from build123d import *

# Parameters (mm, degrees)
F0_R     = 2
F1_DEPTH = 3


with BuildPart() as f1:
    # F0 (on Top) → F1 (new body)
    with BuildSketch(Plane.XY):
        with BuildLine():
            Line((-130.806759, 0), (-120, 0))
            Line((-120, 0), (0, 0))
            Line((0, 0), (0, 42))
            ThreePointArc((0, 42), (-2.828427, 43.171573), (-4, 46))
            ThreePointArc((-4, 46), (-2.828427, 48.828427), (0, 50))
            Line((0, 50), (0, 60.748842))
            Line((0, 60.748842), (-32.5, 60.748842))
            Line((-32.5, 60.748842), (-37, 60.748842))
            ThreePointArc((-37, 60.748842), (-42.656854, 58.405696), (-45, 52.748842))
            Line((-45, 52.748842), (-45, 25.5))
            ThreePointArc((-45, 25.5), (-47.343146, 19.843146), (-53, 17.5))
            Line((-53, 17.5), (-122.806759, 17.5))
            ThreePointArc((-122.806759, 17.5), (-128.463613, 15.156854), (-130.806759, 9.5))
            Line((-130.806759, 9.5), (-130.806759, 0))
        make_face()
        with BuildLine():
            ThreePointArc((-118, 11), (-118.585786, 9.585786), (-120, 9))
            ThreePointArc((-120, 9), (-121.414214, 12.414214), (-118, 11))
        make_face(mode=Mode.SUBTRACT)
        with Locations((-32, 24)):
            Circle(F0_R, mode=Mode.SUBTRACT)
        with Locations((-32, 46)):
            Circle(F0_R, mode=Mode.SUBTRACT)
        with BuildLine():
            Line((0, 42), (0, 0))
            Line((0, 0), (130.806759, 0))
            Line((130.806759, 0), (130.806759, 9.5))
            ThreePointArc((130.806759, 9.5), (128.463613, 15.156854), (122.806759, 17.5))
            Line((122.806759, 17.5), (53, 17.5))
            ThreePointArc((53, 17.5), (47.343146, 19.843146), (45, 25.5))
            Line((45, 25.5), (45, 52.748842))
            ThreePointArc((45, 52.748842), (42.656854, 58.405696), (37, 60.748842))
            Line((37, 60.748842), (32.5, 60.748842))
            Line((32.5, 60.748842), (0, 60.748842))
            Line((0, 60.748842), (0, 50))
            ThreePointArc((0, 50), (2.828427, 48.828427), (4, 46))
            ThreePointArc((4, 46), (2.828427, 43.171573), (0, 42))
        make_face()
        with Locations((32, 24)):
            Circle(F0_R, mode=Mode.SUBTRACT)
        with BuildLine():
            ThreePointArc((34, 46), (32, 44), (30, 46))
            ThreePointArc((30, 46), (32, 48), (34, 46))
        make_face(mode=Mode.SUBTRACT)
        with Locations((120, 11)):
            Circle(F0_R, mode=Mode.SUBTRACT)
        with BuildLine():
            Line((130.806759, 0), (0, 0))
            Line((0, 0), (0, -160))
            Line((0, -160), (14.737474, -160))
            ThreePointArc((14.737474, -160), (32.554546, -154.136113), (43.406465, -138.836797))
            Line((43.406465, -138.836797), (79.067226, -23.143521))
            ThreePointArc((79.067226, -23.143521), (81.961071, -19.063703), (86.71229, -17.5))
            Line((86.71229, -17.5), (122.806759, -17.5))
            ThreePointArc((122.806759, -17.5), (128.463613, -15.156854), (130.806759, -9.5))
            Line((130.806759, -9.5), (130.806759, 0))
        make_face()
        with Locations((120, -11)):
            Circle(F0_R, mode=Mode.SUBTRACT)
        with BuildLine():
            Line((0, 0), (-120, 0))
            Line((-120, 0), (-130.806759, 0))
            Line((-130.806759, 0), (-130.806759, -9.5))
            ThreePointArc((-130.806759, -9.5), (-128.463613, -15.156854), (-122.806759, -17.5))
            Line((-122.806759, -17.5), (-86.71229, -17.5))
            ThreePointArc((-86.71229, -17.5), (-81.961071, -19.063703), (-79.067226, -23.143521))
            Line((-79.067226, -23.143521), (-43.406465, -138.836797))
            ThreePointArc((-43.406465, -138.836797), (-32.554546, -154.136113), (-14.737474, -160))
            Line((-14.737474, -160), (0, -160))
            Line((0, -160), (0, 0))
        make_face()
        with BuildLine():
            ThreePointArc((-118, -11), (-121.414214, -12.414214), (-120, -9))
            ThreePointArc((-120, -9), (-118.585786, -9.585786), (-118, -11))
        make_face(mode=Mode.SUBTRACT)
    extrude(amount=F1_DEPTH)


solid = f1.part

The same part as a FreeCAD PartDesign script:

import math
import FreeCAD as App
import Part
import Sketcher

doc = App.newDocument("Part")
params = doc.addObject("Spreadsheet::Sheet", "Params")
for row, (alias, value) in enumerate([
    ("sketch1_diameter", "4 mm"),
    ("sketch1_radius", "8.000001 mm"),
    ("sketch1_radius2", "30.000001 mm"),
    ("sketch1_radius3", "4 mm"),
    ("sketch1_width", "74 mm"),
    ("pad1_length", "3 mm"),
], start=1):
    params.set(f"A{row}", alias)
    params.set(f"B{row}", "=" + value)
    params.setAlias(f"B{row}", alias)

body = doc.addObject("PartDesign::Body", "Body")

# Sketch on XY plane
sketch1 = body.newObject("Sketcher::SketchObject", "Sketch")
sketch1.AttachmentSupport = (doc.getObject("XY_Plane"), [""])
sketch1.MapMode = "FlatFace"
sketch1.addGeometry([
    Part.LineSegment(App.Vector(-130.8, 9.5, 0), App.Vector(-130.8, -9.5, 0)),  # 0
    Part.ArcOfCircle(Part.Circle(App.Vector(-122.8, -9.5, 0), App.Vector(0, 0, 1), 8), math.radians(-180), math.radians(-90)),  # 1
    Part.LineSegment(App.Vector(-122.8, -17.5, 0), App.Vector(-86.7, -17.5, 0)),  # 2
    Part.ArcOfCircle(Part.Circle(App.Vector(-86.7, -25.5, 0), App.Vector(0, 0, 1), 8), math.radians(17), math.radians(90)),  # 3
    Part.LineSegment(App.Vector(-79.1, -23.1, 0), App.Vector(-43.4, -138.8, 0)),  # 4
    Part.ArcOfCircle(Part.Circle(App.Vector(-14.7, -130, 0), App.Vector(0, 0, 1), 30), math.radians(-163), math.radians(-90)),  # 5
    Part.LineSegment(App.Vector(-14.7, -160, 0), App.Vector(14.7, -160, 0)),  # 6
    Part.ArcOfCircle(Part.Circle(App.Vector(14.7, -130, 0), App.Vector(0, 0, 1), 30), math.radians(-90), math.radians(-17)),  # 7
    Part.LineSegment(App.Vector(43.4, -138.8, 0), App.Vector(79.1, -23.1, 0)),  # 8
    Part.ArcOfCircle(Part.Circle(App.Vector(86.7, -25.5, 0), App.Vector(0, 0, 1), 8), math.radians(90), math.radians(163)),  # 9
    Part.LineSegment(App.Vector(86.7, -17.5, 0), App.Vector(122.8, -17.5, 0)),  # 10
    Part.ArcOfCircle(Part.Circle(App.Vector(122.8, -9.5, 0), App.Vector(0, 0, 1), 8), math.radians(-90), math.radians(0)),  # 11
    Part.LineSegment(App.Vector(130.8, -9.5, 0), App.Vector(130.8, 9.5, 0)),  # 12
    Part.ArcOfCircle(Part.Circle(App.Vector(122.8, 9.5, 0), App.Vector(0, 0, 1), 8), math.radians(0), math.radians(90)),  # 13
    Part.LineSegment(App.Vector(122.8, 17.5, 0), App.Vector(53, 17.5, 0)),  # 14
    Part.ArcOfCircle(Part.Circle(App.Vector(53, 25.5, 0), App.Vector(0, 0, 1), 8), math.radians(-180), math.radians(-90)),  # 15
    Part.LineSegment(App.Vector(45, 25.5, 0), App.Vector(45, 52.7, 0)),  # 16
    Part.ArcOfCircle(Part.Circle(App.Vector(37, 52.7, 0), App.Vector(0, 0, 1), 8), math.radians(0), math.radians(90)),  # 17
    Part.LineSegment(App.Vector(37, 60.7, 0), App.Vector(-37, 60.7, 0)),  # 18
    Part.ArcOfCircle(Part.Circle(App.Vector(-37, 52.7, 0), App.Vector(0, 0, 1), 8), math.radians(90), math.radians(180)),  # 19
    Part.LineSegment(App.Vector(-45, 52.7, 0), App.Vector(-45, 25.5, 0)),  # 20
    Part.ArcOfCircle(Part.Circle(App.Vector(-53, 25.5, 0), App.Vector(0, 0, 1), 8), math.radians(-90), math.radians(0)),  # 21
    Part.LineSegment(App.Vector(-53, 17.5, 0), App.Vector(-122.8, 17.5, 0)),  # 22
    Part.ArcOfCircle(Part.Circle(App.Vector(-122.8, 9.5, 0), App.Vector(0, 0, 1), 8), math.radians(90), math.radians(180)),  # 23
    Part.ArcOfCircle(Part.Circle(App.Vector(-120, -11, 0), App.Vector(0, 0, 1), 2), math.radians(0), math.radians(90)),  # 24
    Part.ArcOfCircle(Part.Circle(App.Vector(-120, -11, 0), App.Vector(0, 0, 1), 2), math.radians(90), math.radians(360)),  # 25
    Part.ArcOfCircle(Part.Circle(App.Vector(-120, 11, 0), App.Vector(0, 0, 1), 2), math.radians(0), math.radians(270)),  # 26
    Part.ArcOfCircle(Part.Circle(App.Vector(-120, 11, 0), App.Vector(0, 0, 1), 2), math.radians(-90), math.radians(0)),  # 27
    Part.Circle(App.Vector(120, -11, 0), App.Vector(0, 0, 1), 2),  # 28
    Part.Circle(App.Vector(120, 11, 0), App.Vector(0, 0, 1), 2),  # 29
    Part.Circle(App.Vector(-32, 24, 0), App.Vector(0, 0, 1), 2),  # 30
    Part.Circle(App.Vector(-32, 46, 0), App.Vector(0, 0, 1), 2),  # 31
    Part.Circle(App.Vector(32, 24, 0), App.Vector(0, 0, 1), 2),  # 32
    Part.ArcOfCircle(Part.Circle(App.Vector(0, 46, 0), App.Vector(0, 0, 1), 4), math.radians(-180), math.radians(-90)),  # 33
    Part.ArcOfCircle(Part.Circle(App.Vector(0, 46, 0), App.Vector(0, 0, 1), 4), math.radians(90), math.radians(180)),  # 34
    Part.ArcOfCircle(Part.Circle(App.Vector(0, 46, 0), App.Vector(0, 0, 1), 4), math.radians(0), math.radians(90)),  # 35
    Part.ArcOfCircle(Part.Circle(App.Vector(0, 46, 0), App.Vector(0, 0, 1), 4), math.radians(-90), math.radians(0)),  # 36
    Part.Circle(App.Vector(32, 46, 0), App.Vector(0, 0, 1), 2),  # 37
], False)
sketch1.addConstraint([
    Sketcher.Constraint("Tangent", 0, 2, 1, 1),
    Sketcher.Constraint("Tangent", 1, 2, 2, 1),
    Sketcher.Constraint("Tangent", 2, 2, 3, 2),
    Sketcher.Constraint("Tangent", 3, 1, 4, 1),
    Sketcher.Constraint("Tangent", 4, 2, 5, 1),
    Sketcher.Constraint("Tangent", 5, 2, 6, 1),
    Sketcher.Constraint("Tangent", 6, 2, 7, 1),
    Sketcher.Constraint("Tangent", 7, 2, 8, 1),
    Sketcher.Constraint("Tangent", 8, 2, 9, 2),
    Sketcher.Constraint("Tangent", 9, 1, 10, 1),
    Sketcher.Constraint("Tangent", 10, 2, 11, 1),
    Sketcher.Constraint("Tangent", 11, 2, 12, 1),
    Sketcher.Constraint("Tangent", 12, 2, 13, 1),
    Sketcher.Constraint("Tangent", 13, 2, 14, 1),
    Sketcher.Constraint("Tangent", 14, 2, 15, 2),
    Sketcher.Constraint("Tangent", 15, 1, 16, 1),
    Sketcher.Constraint("Tangent", 16, 2, 17, 1),
    Sketcher.Constraint("Tangent", 17, 2, 18, 1),
    Sketcher.Constraint("Tangent", 18, 2, 19, 1),
    Sketcher.Constraint("Tangent", 19, 2, 20, 1),
    Sketcher.Constraint("Tangent", 20, 2, 21, 2),
    Sketcher.Constraint("Tangent", 21, 1, 22, 1),
    Sketcher.Constraint("Tangent", 22, 2, 23, 1),
    Sketcher.Constraint("Tangent", 23, 2, 0, 1),
    Sketcher.Constraint("Tangent", 24, 1, 25, 2),
    Sketcher.Constraint("Coincident", 25, 1, 24, 2),
    Sketcher.Constraint("Tangent", 26, 1, 27, 2),
    Sketcher.Constraint("Coincident", 27, 1, 26, 2),
    Sketcher.Constraint("Tangent", 33, 1, 34, 2),
    Sketcher.Constraint("Tangent", 34, 1, 35, 2),
    Sketcher.Constraint("Tangent", 35, 1, 36, 2),
    Sketcher.Constraint("Tangent", 36, 1, 33, 2),
    Sketcher.Constraint("Vertical", 0),
    Sketcher.Constraint("Horizontal", 2),
    Sketcher.Constraint("Horizontal", 6),
    Sketcher.Constraint("Horizontal", 10),
    Sketcher.Constraint("Vertical", 12),
    Sketcher.Constraint("Horizontal", 14),
    Sketcher.Constraint("Vertical", 16),
    Sketcher.Constraint("Horizontal", 18),
    Sketcher.Constraint("Vertical", 20),
    Sketcher.Constraint("Horizontal", 22),
    Sketcher.Constraint("Equal", 1, 3),
    Sketcher.Constraint("Equal", 5, 7),
    Sketcher.Constraint("Equal", 3, 9),
    Sketcher.Constraint("Equal", 9, 11),
    Sketcher.Constraint("Equal", 11, 13),
    Sketcher.Constraint("Equal", 13, 15),
    Sketcher.Constraint("Equal", 15, 17),
    Sketcher.Constraint("Equal", 17, 19),
    Sketcher.Constraint("Equal", 19, 21),
    Sketcher.Constraint("Equal", 21, 23),
    Sketcher.Constraint("Equal", 25, 26),
    Sketcher.Constraint("Equal", 27, 28),
    Sketcher.Constraint("Equal", 28, 29),
    Sketcher.Constraint("Equal", 29, 30),
    Sketcher.Constraint("Equal", 30, 31),
    Sketcher.Constraint("Equal", 31, 32),
    Sketcher.Constraint("Equal", 33, 34),
    Sketcher.Constraint("Equal", 32, 37),
    Sketcher.Constraint("Symmetric", 1, 3, 13, 3, -1, 1),
    Sketcher.Constraint("Symmetric", 26, 3, 28, 3, -1, 1),
    Sketcher.Constraint("Symmetric", 24, 3, 29, 3, -1, 1),
    Sketcher.Constraint("Symmetric", 3, 3, 9, 3, -2),
    Sketcher.Constraint("Symmetric", 15, 3, 21, 3, -2),
    Sketcher.Constraint("Symmetric", 24, 3, 28, 3, -2),
    Sketcher.Constraint("Symmetric", 30, 3, 32, 3, -2),
    Sketcher.Constraint("Symmetric", 31, 3, 37, 3, -2),
    Sketcher.Constraint("Symmetric", 33, 1, 35, 1, -2),
    Sketcher.Constraint("PointOnObject", 34, 1, -2),
    Sketcher.Constraint("PointOnObject", 36, 1, -2),
    Sketcher.Constraint("Horizontal", 31, 3, 33, 3),
    Sketcher.Constraint("Horizontal", 4, 2, 7, 2),
    Sketcher.Constraint("Horizontal", 28, 3, 24, 1),
    Sketcher.Constraint("Horizontal", 29, 3, 26, 1),
    Sketcher.Constraint("Horizontal", 37, 3, 33, 1),
    Sketcher.Constraint("Vertical", 30, 3, 31, 3),
    Sketcher.Constraint("Vertical", 27, 3, 25, 1),
    Sketcher.Constraint("Vertical", 25, 1, 27, 1),
    Sketcher.Constraint("Diameter", 28, 4.0),
    Sketcher.Constraint("Radius", 1, 8.000001),
    Sketcher.Constraint("Radius", 5, 30.000001),
    Sketcher.Constraint("Radius", 33, 4.0),
    Sketcher.Constraint("DistanceX", 18, 2, 18, 1, 74.0),
    Sketcher.Constraint("DistanceY", 0, 2, 0, 1, 19.0),
    Sketcher.Constraint("DistanceY", 5, 3, -1, 1, 129.999999),
    Sketcher.Constraint("DistanceX", 24, 3, -1, 1, 119.999999),
    Sketcher.Constraint("DistanceY", 24, 3, -1, 1, 10.999999),
    Sketcher.Constraint("DistanceX", 30, 3, -1, 1, 32.0),
    Sketcher.Constraint("DistanceY", -1, 1, 30, 3, 24.0),
    Sketcher.Constraint("DistanceY", -1, 1, 31, 3, 46.0),
    Sketcher.Constraint("DistanceX", 2, 1, 2, 2, 36.094469),
    Sketcher.Constraint("DistanceX", 6, 1, 6, 2, 29.474948),
    Sketcher.Constraint("DistanceX", 14, 2, 14, 1, 69.806759),
    Sketcher.Constraint("DistanceY", 16, 1, 16, 2, 27.248842),
])
sketch1.setExpression("Constraints[79]", "Params.sketch1_diameter")
sketch1.setExpression("Constraints[80]", "Params.sketch1_radius")
sketch1.setExpression("Constraints[81]", "Params.sketch1_radius2")
sketch1.setExpression("Constraints[82]", "Params.sketch1_radius3")
sketch1.setExpression("Constraints[83]", "Params.sketch1_width")
pad1 = body.newObject("PartDesign::Pad", "Pad")
pad1.Profile = sketch1
pad1.setExpression("Length", "Params.pad1_length")

doc.recompute()
